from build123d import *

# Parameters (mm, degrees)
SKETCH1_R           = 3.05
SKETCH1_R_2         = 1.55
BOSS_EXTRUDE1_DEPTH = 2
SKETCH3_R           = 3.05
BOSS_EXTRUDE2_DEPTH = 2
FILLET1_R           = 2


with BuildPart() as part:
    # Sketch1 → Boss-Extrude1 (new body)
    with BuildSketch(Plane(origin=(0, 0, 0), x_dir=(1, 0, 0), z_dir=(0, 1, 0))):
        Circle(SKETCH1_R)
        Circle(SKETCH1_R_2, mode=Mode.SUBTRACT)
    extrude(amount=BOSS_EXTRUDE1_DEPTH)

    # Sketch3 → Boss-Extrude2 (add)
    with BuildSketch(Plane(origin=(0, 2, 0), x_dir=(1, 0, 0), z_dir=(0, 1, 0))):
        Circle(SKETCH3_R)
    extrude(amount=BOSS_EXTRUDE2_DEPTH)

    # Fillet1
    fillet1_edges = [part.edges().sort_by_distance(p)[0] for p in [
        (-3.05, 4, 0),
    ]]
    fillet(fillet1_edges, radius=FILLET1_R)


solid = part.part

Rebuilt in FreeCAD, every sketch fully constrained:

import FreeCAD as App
import Part
import Sketcher

V = App.Vector


def edges_at(feature, points):
    """Names of the edges that pass closest to the given points."""
    edges = feature.Shape.Edges
    near = lambda p: min(range(len(edges)), key=lambda i: edges[i].distToShape(Part.Vertex(*p))[0])
    return sorted({f"Edge{near(p) + 1}" for p in points})

doc = App.newDocument("Part")
params = doc.addObject("Spreadsheet::Sheet", "Params")
for row, (alias, value) in enumerate([
    ("sketch1_diameter", "6.1 mm"),
    ("sketch1_diameter2", "3.1 mm"),
    ("pad1_length", "2 mm"),
    ("sketch2_diameter", "6.1 mm"),
    ("pad2_length", "2 mm"),
    ("fillet_radius", "2 mm"),
], start=1):
    params.set(f"A{row}", alias)
    params.set(f"B{row}", "=" + value)
    params.setAlias(f"B{row}", alias)

body = doc.addObject("PartDesign::Body", "Body")

# Sketch on XZ plane
sketch1 = doc.addObject("Sketcher::SketchObject", "Sketch")
body.addObject(sketch1)
sketch1.AttachmentSupport = (doc.XZ_Plane, [""])
sketch1.MapMode = "FlatFace"
sketch1.addGeometry(Part.Circle(V(0, 0, 0), V(0, 0, 1), 3), False)
sketch1.addGeometry(Part.Circle(V(0, 0, 0), V(0, 0, 1), 1.6), False)
sketch1.addConstraint(Sketcher.Constraint("Coincident", 0, 3, -1, 1))
sketch1.addConstraint(Sketcher.Constraint("Coincident", 1, 3, -1, 1))
sketch1.addConstraint(Sketcher.Constraint("Diameter", 0, 6.1))
sketch1.addConstraint(Sketcher.Constraint("Diameter", 1, 3.1))
sketch1.setExpression("Constraints[2]", "Params.sketch1_diameter")
sketch1.setExpression("Constraints[3]", "Params.sketch1_diameter2")
pad1 = doc.addObject("PartDesign::Pad", "Pad")
body.addObject(pad1)
pad1.Profile = sketch1
pad1.setExpression("Length", "Params.pad1_length")
pad1.Reversed = True

# Sketch on XZ plane
sketch2 = doc.addObject("Sketcher::SketchObject", "Sketch001")
body.addObject(sketch2)
sketch2.AttachmentSupport = (doc.XZ_Plane, [""])
sketch2.MapMode = "FlatFace"
sketch2.AttachmentOffset = App.Placement(V(0, 0, -2), App.Rotation())
sketch2.addGeometry(Part.Circle(V(0, 0, 0), V(0, 0, 1), 3), False)
sketch2.addConstraint(Sketcher.Constraint("Coincident", 0, 3, -1, 1))
sketch2.addConstraint(Sketcher.Constraint("Diameter", 0, 6.1))
sketch2.setExpression("Constraints[1]", "Params.sketch2_diameter")
pad2 = doc.addObject("PartDesign::Pad", "Pad001")
body.addObject(pad2)
pad2.Profile = sketch2
pad2.setExpression("Length", "Params.pad2_length")
pad2.Reversed = True
doc.recompute()

fillet = doc.addObject("PartDesign::Fillet", "Fillet")
body.addObject(fillet)
fillet.Base = (pad2, edges_at(pad2, [(-3.05, 4, 0)]))
fillet.setExpression("Radius", "Params.fillet_radius")

doc.recompute()
